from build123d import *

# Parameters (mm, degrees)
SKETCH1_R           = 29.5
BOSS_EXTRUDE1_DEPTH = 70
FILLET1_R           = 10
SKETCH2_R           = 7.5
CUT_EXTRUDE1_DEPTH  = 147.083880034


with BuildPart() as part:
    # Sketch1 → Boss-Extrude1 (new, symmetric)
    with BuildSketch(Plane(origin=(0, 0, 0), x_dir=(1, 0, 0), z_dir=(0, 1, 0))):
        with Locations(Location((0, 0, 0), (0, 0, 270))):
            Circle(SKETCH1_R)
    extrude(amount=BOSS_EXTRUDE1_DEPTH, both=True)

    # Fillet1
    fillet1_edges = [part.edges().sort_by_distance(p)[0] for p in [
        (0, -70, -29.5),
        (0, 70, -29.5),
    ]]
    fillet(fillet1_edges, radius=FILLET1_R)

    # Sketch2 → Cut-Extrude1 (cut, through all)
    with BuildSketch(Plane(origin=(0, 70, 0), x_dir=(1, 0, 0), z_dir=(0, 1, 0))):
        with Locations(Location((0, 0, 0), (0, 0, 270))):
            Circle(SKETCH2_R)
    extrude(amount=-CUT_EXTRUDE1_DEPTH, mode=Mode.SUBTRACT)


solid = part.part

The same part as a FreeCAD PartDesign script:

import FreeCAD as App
import Part
import Sketcher


def edges_at(feature, points):
    """Names of the edges that pass closest to the given points."""
    edges = feature.Shape.Edges
    near = lambda p: min(range(len(edges)), key=lambda i: edges[i].distToShape(Part.Vertex(*p))[0])
    return sorted({f"Edge{near(p) + 1}" for p in points})

doc = App.newDocument("Part")
body = doc.addObject("PartDesign::Body", "Body")

# Sketch on XZ plane
sketch1 = body.newObject("Sketcher::SketchObject", "Sketch")
sketch1.AttachmentSupport = (doc.getObject("XZ_Plane"), [""])
sketch1.MapMode = "FlatFace"
sketch1.addGeometry(Part.Circle(App.Vector(0, 0, 0), App.Vector(0, 0, 1), 30), False)
sketch1.addConstraint(Sketcher.Constraint("Coincident", 0, 3, -1, 1))
sketch1.addConstraint(Sketcher.Constraint("Diameter", 0, 59.0))
pad1 = body.newObject("PartDesign::Pad", "Pad")
pad1.Profile = sketch1
pad1.Length = 140
pad1.Midplane = True
doc.recompute()

fillet = body.newObject("PartDesign::Fillet", "Fillet")
fillet.Base = (pad1, edges_at(pad1, [(0, -70, -29.5), (0, 70, -29.5)]))
fillet.Radius = 10

# Sketch on XZ plane
sketch2 = body.newObject("Sketcher::SketchObject", "Sketch001")
sketch2.AttachmentSupport = (doc.getObject("XZ_Plane"), [""])
sketch2.MapMode = "FlatFace"
sketch2.AttachmentOffset = App.Placement(App.Vector(0, 0, -70), App.Rotation())
sketch2.addGeometry(Part.Circle(App.Vector(0, 0, 0), App.Vector(0, 0, 1), 8), False)
sketch2.addConstraint(Sketcher.Constraint("Coincident", 0, 3, -1, 1))
sketch2.addConstraint(Sketcher.Constraint("Diameter", 0, 15.0))
pocket1 = body.newObject("PartDesign::Pocket", "Pocket")
pocket1.Profile = sketch2
pocket1.Type = "ThroughAll"
pocket1.Reversed = True

doc.recompute()
